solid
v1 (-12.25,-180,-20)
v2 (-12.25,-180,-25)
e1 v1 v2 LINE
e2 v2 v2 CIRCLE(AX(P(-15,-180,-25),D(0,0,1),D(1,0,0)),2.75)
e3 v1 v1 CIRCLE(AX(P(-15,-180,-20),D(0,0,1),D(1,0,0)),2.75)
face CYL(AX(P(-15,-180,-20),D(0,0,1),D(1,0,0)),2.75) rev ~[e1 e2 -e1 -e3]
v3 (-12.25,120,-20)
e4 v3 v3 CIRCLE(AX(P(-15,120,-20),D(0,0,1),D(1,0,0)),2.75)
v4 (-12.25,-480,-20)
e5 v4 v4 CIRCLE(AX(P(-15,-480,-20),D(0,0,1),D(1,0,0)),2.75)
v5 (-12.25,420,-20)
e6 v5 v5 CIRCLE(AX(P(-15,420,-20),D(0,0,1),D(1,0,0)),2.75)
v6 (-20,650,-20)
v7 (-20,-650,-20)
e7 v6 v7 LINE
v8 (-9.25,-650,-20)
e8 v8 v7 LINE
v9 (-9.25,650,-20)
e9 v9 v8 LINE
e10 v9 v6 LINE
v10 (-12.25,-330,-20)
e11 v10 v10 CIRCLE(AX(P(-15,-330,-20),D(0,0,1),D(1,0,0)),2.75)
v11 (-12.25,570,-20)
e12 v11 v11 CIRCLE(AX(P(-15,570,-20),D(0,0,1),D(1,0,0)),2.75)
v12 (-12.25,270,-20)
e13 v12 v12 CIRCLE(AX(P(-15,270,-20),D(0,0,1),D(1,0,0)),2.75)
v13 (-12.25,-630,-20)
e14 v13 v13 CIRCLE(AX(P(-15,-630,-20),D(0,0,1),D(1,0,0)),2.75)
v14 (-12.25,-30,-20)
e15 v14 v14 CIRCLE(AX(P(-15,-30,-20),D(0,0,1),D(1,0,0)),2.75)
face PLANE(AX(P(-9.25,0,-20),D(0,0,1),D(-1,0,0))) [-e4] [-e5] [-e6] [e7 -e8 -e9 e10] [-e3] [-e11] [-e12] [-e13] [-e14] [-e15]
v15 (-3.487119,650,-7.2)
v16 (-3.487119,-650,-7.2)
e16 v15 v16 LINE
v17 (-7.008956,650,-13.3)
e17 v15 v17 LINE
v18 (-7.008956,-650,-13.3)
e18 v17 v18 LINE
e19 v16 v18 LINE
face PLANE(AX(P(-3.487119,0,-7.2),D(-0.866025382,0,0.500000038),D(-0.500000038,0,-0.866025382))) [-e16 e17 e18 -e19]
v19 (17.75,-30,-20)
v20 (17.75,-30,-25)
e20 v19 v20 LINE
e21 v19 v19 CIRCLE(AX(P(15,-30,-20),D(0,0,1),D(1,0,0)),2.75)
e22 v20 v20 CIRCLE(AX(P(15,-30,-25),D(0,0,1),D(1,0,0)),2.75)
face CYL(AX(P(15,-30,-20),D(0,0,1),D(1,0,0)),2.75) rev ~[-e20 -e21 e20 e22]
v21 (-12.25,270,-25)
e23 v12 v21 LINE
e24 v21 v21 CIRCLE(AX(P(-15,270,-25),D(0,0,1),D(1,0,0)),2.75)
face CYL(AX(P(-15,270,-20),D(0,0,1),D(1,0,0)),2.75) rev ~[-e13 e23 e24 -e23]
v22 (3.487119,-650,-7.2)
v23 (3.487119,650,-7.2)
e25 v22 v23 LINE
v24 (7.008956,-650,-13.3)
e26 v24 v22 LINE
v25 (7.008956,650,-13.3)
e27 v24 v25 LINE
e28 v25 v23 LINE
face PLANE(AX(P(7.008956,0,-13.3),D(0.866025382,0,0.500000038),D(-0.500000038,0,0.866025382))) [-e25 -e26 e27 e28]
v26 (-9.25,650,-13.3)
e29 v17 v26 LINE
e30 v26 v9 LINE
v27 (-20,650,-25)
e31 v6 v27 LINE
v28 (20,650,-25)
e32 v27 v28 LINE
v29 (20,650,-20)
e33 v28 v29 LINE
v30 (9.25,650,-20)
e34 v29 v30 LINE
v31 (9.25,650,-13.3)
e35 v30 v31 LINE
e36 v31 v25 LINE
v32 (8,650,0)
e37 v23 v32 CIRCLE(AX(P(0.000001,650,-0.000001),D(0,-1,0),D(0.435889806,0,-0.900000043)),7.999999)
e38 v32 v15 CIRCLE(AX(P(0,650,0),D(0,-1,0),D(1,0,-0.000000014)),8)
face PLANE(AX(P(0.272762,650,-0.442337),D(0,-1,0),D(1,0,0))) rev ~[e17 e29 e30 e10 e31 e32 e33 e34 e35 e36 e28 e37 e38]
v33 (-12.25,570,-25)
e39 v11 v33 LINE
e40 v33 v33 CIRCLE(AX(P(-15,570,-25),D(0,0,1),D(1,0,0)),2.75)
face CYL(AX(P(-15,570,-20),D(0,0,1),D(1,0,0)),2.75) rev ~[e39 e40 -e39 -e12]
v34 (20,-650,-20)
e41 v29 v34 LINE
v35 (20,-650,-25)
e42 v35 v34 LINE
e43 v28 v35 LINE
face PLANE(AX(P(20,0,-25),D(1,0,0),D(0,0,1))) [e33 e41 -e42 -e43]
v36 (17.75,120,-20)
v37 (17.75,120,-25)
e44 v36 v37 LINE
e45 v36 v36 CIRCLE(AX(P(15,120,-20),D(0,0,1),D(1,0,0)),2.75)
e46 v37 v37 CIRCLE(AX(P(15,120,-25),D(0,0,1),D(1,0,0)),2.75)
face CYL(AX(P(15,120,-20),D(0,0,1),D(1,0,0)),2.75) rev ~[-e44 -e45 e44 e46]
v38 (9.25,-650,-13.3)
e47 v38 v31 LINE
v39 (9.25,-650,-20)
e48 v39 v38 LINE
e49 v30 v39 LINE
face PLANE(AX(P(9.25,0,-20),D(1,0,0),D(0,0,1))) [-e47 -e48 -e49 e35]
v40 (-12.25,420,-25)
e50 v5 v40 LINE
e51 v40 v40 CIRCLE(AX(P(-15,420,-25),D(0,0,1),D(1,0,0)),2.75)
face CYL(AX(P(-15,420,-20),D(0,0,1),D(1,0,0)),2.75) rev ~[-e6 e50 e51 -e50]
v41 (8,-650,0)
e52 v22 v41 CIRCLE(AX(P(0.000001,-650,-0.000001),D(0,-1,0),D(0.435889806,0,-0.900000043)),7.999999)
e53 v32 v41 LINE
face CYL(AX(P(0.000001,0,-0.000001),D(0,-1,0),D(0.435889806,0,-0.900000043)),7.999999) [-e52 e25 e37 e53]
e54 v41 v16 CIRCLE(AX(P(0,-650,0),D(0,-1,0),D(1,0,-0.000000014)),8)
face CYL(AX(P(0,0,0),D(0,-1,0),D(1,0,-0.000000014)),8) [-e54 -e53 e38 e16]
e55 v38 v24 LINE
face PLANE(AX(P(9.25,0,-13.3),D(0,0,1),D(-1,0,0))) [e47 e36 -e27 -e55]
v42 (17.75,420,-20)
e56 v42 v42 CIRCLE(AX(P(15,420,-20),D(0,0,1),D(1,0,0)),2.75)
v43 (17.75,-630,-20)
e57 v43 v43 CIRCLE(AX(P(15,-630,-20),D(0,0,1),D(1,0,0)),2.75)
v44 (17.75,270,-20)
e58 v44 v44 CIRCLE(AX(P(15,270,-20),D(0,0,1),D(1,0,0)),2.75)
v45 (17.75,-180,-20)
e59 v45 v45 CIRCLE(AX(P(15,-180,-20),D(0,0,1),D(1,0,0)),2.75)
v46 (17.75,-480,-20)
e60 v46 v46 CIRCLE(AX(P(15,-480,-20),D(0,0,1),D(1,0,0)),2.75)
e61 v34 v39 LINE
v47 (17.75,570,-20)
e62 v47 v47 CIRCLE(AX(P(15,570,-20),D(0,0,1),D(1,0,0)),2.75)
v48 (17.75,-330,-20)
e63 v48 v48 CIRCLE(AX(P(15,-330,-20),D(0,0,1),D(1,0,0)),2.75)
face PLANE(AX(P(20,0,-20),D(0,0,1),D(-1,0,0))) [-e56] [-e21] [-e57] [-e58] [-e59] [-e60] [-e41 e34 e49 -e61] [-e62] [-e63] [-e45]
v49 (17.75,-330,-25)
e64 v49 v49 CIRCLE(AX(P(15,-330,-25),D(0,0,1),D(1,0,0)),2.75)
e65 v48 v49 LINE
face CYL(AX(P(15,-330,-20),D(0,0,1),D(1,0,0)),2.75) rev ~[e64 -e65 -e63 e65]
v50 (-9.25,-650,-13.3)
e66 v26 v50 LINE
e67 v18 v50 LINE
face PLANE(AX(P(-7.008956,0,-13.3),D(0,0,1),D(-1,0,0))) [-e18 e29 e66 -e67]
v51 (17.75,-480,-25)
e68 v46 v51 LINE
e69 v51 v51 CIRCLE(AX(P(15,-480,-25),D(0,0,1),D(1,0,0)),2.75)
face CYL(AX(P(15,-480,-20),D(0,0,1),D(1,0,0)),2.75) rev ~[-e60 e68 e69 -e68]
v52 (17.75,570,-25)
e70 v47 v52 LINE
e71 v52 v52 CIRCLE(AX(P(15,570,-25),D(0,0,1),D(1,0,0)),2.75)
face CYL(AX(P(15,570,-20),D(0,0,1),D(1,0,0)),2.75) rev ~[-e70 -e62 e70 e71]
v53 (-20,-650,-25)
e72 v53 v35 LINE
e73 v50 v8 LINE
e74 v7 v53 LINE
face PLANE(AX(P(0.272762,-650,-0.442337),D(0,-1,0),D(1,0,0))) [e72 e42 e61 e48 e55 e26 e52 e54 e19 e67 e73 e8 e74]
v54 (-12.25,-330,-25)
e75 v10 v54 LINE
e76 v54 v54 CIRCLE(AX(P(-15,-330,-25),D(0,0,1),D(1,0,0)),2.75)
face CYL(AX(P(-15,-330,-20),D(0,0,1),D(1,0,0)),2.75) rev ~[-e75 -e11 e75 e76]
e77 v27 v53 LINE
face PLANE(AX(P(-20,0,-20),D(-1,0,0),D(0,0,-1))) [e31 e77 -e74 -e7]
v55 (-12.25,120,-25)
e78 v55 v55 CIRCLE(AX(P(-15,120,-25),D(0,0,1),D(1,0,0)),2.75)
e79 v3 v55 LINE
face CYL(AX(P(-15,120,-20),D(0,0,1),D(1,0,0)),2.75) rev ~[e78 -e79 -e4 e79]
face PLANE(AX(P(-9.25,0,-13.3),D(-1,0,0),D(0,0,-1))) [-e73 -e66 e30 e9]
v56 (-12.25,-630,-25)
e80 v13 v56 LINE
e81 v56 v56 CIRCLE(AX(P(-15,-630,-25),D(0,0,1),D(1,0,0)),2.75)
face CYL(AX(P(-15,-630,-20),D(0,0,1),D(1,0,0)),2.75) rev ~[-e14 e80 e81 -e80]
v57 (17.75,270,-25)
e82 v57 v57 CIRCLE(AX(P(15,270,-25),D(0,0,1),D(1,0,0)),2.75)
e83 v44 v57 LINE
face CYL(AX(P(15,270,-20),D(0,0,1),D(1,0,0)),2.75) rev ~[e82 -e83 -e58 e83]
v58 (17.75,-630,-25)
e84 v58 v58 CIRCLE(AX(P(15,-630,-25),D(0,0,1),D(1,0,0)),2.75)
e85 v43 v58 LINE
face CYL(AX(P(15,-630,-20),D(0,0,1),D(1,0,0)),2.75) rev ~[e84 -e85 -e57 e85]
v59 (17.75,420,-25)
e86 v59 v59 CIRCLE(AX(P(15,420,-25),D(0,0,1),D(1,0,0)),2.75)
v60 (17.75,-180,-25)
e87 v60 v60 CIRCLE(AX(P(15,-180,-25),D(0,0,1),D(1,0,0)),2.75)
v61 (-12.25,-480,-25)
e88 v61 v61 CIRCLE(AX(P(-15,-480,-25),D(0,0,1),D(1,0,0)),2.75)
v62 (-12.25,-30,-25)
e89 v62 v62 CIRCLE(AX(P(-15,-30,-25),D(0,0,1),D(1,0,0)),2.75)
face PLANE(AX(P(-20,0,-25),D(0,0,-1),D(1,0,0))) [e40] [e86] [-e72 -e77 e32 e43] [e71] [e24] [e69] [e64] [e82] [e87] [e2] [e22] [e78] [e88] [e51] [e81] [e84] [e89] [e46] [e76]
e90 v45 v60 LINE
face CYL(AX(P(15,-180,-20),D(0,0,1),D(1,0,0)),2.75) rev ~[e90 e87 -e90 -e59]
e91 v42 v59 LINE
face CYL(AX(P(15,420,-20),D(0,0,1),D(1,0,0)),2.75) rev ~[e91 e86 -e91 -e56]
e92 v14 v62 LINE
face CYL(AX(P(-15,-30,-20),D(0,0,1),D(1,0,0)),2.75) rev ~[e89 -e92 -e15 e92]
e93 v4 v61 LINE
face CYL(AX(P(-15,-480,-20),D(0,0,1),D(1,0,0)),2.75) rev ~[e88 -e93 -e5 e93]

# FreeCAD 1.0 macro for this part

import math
import FreeCAD as App
import Part
import Sketcher
Q = App.Units.Quantity

doc = App.newDocument("Part")
body = doc.addObject("PartDesign::Body", "Body")

# Sketch on XZ plane
sketch1 = body.newObject("Sketcher::SketchObject", "Sketch")
sketch1.AttachmentSupport = (doc.getObject("XZ_Plane"), [""])
sketch1.MapMode = "FlatFace"
sketch1.addGeometry([
    Part.ArcOfCircle(Part.Circle(App.Vector(0, 0, 0), App.Vector(0, 0, 1), 8), math.radians(-64), math.radians(0)),  # 0
    Part.ArcOfCircle(Part.Circle(App.Vector(0, 0, 0), App.Vector(0, 0, 1), 8), math.radians(0), math.radians(244)),  # 1
    Part.LineSegment(App.Vector(-3.5, -7.2, 0), App.Vector(-7, -13.3, 0)),  # 2
    Part.LineSegment(App.Vector(-7, -13.3, 0), App.Vector(-9.2, -13.3, 0)),  # 3
    Part.LineSegment(App.Vector(-9.2, -13.3, 0), App.Vector(-9.2, -20, 0)),  # 4
    Part.LineSegment(App.Vector(-9.2, -20, 0), App.Vector(-20, -20, 0)),  # 5
    Part.LineSegment(App.Vector(-20, -20, 0), App.Vector(-20, -25, 0)),  # 6
    Part.LineSegment(App.Vector(-20, -25, 0), App.Vector(20, -25, 0)),  # 7
    Part.LineSegment(App.Vector(20, -25, 0), App.Vector(20, -20, 0)),  # 8
    Part.LineSegment(App.Vector(20, -20, 0), App.Vector(9.2, -20, 0)),  # 9
    Part.LineSegment(App.Vector(9.2, -20, 0), App.Vector(9.2, -13.3, 0)),  # 10
    Part.LineSegment(App.Vector(9.2, -13.3, 0), App.Vector(7, -13.3, 0)),  # 11
    Part.LineSegment(App.Vector(7, -13.3, 0), App.Vector(3.5, -7.2, 0)),  # 12
], False)
sketch1.addConstraint([
    Sketcher.Constraint("Tangent", 0, 2, 1, 1),
    Sketcher.Constraint("Coincident", 1, 2, 2, 1),
    Sketcher.Constraint("Coincident", 2, 2, 3, 1),
    Sketcher.Constraint("Coincident", 3, 2, 4, 1),
    Sketcher.Constraint("Coincident", 4, 2, 5, 1),
    Sketcher.Constraint("Coincident", 5, 2, 6, 1),
    Sketcher.Constraint("Coincident", 6, 2, 7, 1),
    Sketcher.Constraint("Coincident", 7, 2, 8, 1),
    Sketcher.Constraint("Coincident", 8, 2, 9, 1),
    Sketcher.Constraint("Coincident", 9, 2, 10, 1),
    Sketcher.Constraint("Coincident", 10, 2, 11, 1),
    Sketcher.Constraint("Coincident", 11, 2, 12, 1),
    Sketcher.Constraint("Coincident", 12, 2, 0, 1),
    Sketcher.Constraint("Horizontal", 3),
    Sketcher.Constraint("Vertical", 4),
    Sketcher.Constraint("Horizontal", 5),
    Sketcher.Constraint("Vertical", 6),
    Sketcher.Constraint("Horizontal", 7),
    Sketcher.Constraint("Vertical", 8),
    Sketcher.Constraint("Horizontal", 9),
    Sketcher.Constraint("Vertical", 10),
    Sketcher.Constraint("Horizontal", 11),
    Sketcher.Constraint("Coincident", 0, 3, -1, 1),
    Sketcher.Constraint("Equal", 0, 1),
    Sketcher.Constraint("Symmetric", 5, 2, 8, 2, -2),
    Sketcher.Constraint("Symmetric", 3, 2, 10, 2, -2),
    Sketcher.Constraint("PointOnObject", 0, 2, -1),
    Sketcher.Constraint("Horizontal", 1, 2, 12, 2),
    Sketcher.Constraint("Equal", 3, 11),
    Sketcher.Constraint("Radius", 0, 7.999999),
    Sketcher.Constraint("DistanceX", 7, 1, 7, 2, 40.0),
    Sketcher.Constraint("DistanceY", 6, 2, 6, 1, 5.0),
    Sketcher.Constraint("Angle", 2, Q("-120.000003 deg")),
    Sketcher.Constraint("DistanceY", 4, 2, 4, 1, 6.7),
    Sketcher.Constraint("DistanceY", 4, 2, -1, 1, 20.0),
    Sketcher.Constraint("DistanceX", 5, 2, 5, 1, 10.75),
    Sketcher.Constraint("DistanceY", 1, 2, -1, 1, 7.2),
])
pad1 = body.newObject("PartDesign::Pad", "Pad")
pad1.Profile = sketch1
pad1.Length = 1300
pad1.Midplane = True

# Sketch on XY plane
sketch2 = body.newObject("Sketcher::SketchObject", "Sketch001")
sketch2.AttachmentSupport = (doc.getObject("XY_Plane"), [""])
sketch2.MapMode = "FlatFace"
sketch2.AttachmentOffset = App.Placement(App.Vector(0, 0, -20), App.Rotation())
sketch2.addGeometry([
    Part.Circle(App.Vector(-15, -630, 0), App.Vector(0, 0, 1), 2.8),  # 0
    Part.Circle(App.Vector(15, -630, 0), App.Vector(0, 0, 1), 2.8),  # 1
    Part.Circle(App.Vector(-15, -480, 0), App.Vector(0, 0, 1), 2.8),  # 2
    Part.Circle(App.Vector(15, -480, 0), App.Vector(0, 0, 1), 2.8),  # 3
    Part.Circle(App.Vector(-15, -330, 0), App.Vector(0, 0, 1), 2.8),  # 4
    Part.Circle(App.Vector(15, -330, 0), App.Vector(0, 0, 1), 2.8),  # 5
    Part.Circle(App.Vector(-15, -180, 0), App.Vector(0, 0, 1), 2.8),  # 6
    Part.Circle(App.Vector(15, -180, 0), App.Vector(0, 0, 1), 2.8),  # 7
    Part.Circle(App.Vector(-15, -30, 0), App.Vector(0, 0, 1), 2.8),  # 8
    Part.Circle(App.Vector(15, -30, 0), App.Vector(0, 0, 1), 2.8),  # 9
    Part.Circle(App.Vector(-15, 120, 0), App.Vector(0, 0, 1), 2.8),  # 10
    Part.Circle(App.Vector(15, 120, 0), App.Vector(0, 0, 1), 2.8),  # 11
    Part.Circle(App.Vector(-15, 270, 0), App.Vector(0, 0, 1), 2.8),  # 12
    Part.Circle(App.Vector(15, 270, 0), App.Vector(0, 0, 1), 2.8),  # 13
    Part.Circle(App.Vector(-15, 420, 0), App.Vector(0, 0, 1), 2.8),  # 14
    Part.Circle(App.Vector(15, 420, 0), App.Vector(0, 0, 1), 2.8),  # 15
    Part.Circle(App.Vector(-15, 570, 0), App.Vector(0, 0, 1), 2.8),  # 16
    Part.Circle(App.Vector(15, 570, 0), App.Vector(0, 0, 1), 2.8),  # 17
], False)
sketch2.addConstraint([
    Sketcher.Constraint("Equal", 0, 1),
    Sketcher.Constraint("Equal", 1, 2),
    Sketcher.Constraint("Equal", 2, 3),
    Sketcher.Constraint("Equal", 3, 4),
    Sketcher.Constraint("Equal", 4, 5),
    Sketcher.Constraint("Equal", 5, 6),
    Sketcher.Constraint("Equal", 6, 7),
    Sketcher.Constraint("Equal", 7, 8),
    Sketcher.Constraint("Equal", 8, 9),
    Sketcher.Constraint("Equal", 9, 10),
    Sketcher.Constraint("Equal", 10, 11),
    Sketcher.Constraint("Equal", 11, 12),
    Sketcher.Constraint("Equal", 12, 13),
    Sketcher.Constraint("Equal", 13, 14),
    Sketcher.Constraint("Equal", 14, 15),
    Sketcher.Constraint("Equal", 15, 16),
    Sketcher.Constraint("Equal", 16, 17),
    Sketcher.Constraint("Symmetric", 0, 3, 1, 3, -2),
    Sketcher.Constraint("Symmetric", 2, 3, 3, 3, -2),
    Sketcher.Constraint("Symmetric", 4, 3, 5, 3, -2),
    Sketcher.Constraint("Symmetric", 6, 3, 7, 3, -2),
    Sketcher.Constraint("Symmetric", 8, 3, 9, 3, -2),
    Sketcher.Constraint("Symmetric", 10, 3, 11, 3, -2),
    Sketcher.Constraint("Symmetric", 12, 3, 13, 3, -2),
    Sketcher.Constraint("Symmetric", 14, 3, 15, 3, -2),
    Sketcher.Constraint("Symmetric", 16, 3, 17, 3, -2),
    Sketcher.Constraint("Vertical", 0, 3, 2, 3),
    Sketcher.Constraint("Vertical", 2, 3, 4, 3),
    Sketcher.Constraint("Vertical", 4, 3, 6, 3),
    Sketcher.Constraint("Vertical", 6, 3, 8, 3),
    Sketcher.Constraint("Vertical", 8, 3, 10, 3),
    Sketcher.Constraint("Vertical", 10, 3, 12, 3),
    Sketcher.Constraint("Vertical", 12, 3, 14, 3),
    Sketcher.Constraint("Vertical", 14, 3, 16, 3),
    Sketcher.Constraint("Diameter", 0, 5.5),
    Sketcher.Constraint("DistanceX", 0, 3, -1, 1, 15.0),
    Sketcher.Constraint("DistanceY", 0, 3, -1, 1, 630.0),
    Sketcher.Constraint("DistanceY", 2, 3, -1, 1, 480.0),
    Sketcher.Constraint("DistanceY", 4, 3, -1, 1, 330.0),
    Sketcher.Constraint("DistanceY", 6, 3, -1, 1, 180.0),
    Sketcher.Constraint("DistanceY", 8, 3, -1, 1, 30.0),
    Sketcher.Constraint("DistanceY", -1, 1, 10, 3, 120.0),
    Sketcher.Constraint("DistanceY", -1, 1, 12, 3, 270.0),
    Sketcher.Constraint("DistanceY", -1, 1, 14, 3, 420.0),
    Sketcher.Constraint("DistanceY", -1, 1, 16, 3, 570.0),
])
pocket1 = body.newObject("PartDesign::Pocket", "Pocket")
pocket1.Profile = sketch2
pocket1.Type = "ThroughAll"

doc.recompute()
